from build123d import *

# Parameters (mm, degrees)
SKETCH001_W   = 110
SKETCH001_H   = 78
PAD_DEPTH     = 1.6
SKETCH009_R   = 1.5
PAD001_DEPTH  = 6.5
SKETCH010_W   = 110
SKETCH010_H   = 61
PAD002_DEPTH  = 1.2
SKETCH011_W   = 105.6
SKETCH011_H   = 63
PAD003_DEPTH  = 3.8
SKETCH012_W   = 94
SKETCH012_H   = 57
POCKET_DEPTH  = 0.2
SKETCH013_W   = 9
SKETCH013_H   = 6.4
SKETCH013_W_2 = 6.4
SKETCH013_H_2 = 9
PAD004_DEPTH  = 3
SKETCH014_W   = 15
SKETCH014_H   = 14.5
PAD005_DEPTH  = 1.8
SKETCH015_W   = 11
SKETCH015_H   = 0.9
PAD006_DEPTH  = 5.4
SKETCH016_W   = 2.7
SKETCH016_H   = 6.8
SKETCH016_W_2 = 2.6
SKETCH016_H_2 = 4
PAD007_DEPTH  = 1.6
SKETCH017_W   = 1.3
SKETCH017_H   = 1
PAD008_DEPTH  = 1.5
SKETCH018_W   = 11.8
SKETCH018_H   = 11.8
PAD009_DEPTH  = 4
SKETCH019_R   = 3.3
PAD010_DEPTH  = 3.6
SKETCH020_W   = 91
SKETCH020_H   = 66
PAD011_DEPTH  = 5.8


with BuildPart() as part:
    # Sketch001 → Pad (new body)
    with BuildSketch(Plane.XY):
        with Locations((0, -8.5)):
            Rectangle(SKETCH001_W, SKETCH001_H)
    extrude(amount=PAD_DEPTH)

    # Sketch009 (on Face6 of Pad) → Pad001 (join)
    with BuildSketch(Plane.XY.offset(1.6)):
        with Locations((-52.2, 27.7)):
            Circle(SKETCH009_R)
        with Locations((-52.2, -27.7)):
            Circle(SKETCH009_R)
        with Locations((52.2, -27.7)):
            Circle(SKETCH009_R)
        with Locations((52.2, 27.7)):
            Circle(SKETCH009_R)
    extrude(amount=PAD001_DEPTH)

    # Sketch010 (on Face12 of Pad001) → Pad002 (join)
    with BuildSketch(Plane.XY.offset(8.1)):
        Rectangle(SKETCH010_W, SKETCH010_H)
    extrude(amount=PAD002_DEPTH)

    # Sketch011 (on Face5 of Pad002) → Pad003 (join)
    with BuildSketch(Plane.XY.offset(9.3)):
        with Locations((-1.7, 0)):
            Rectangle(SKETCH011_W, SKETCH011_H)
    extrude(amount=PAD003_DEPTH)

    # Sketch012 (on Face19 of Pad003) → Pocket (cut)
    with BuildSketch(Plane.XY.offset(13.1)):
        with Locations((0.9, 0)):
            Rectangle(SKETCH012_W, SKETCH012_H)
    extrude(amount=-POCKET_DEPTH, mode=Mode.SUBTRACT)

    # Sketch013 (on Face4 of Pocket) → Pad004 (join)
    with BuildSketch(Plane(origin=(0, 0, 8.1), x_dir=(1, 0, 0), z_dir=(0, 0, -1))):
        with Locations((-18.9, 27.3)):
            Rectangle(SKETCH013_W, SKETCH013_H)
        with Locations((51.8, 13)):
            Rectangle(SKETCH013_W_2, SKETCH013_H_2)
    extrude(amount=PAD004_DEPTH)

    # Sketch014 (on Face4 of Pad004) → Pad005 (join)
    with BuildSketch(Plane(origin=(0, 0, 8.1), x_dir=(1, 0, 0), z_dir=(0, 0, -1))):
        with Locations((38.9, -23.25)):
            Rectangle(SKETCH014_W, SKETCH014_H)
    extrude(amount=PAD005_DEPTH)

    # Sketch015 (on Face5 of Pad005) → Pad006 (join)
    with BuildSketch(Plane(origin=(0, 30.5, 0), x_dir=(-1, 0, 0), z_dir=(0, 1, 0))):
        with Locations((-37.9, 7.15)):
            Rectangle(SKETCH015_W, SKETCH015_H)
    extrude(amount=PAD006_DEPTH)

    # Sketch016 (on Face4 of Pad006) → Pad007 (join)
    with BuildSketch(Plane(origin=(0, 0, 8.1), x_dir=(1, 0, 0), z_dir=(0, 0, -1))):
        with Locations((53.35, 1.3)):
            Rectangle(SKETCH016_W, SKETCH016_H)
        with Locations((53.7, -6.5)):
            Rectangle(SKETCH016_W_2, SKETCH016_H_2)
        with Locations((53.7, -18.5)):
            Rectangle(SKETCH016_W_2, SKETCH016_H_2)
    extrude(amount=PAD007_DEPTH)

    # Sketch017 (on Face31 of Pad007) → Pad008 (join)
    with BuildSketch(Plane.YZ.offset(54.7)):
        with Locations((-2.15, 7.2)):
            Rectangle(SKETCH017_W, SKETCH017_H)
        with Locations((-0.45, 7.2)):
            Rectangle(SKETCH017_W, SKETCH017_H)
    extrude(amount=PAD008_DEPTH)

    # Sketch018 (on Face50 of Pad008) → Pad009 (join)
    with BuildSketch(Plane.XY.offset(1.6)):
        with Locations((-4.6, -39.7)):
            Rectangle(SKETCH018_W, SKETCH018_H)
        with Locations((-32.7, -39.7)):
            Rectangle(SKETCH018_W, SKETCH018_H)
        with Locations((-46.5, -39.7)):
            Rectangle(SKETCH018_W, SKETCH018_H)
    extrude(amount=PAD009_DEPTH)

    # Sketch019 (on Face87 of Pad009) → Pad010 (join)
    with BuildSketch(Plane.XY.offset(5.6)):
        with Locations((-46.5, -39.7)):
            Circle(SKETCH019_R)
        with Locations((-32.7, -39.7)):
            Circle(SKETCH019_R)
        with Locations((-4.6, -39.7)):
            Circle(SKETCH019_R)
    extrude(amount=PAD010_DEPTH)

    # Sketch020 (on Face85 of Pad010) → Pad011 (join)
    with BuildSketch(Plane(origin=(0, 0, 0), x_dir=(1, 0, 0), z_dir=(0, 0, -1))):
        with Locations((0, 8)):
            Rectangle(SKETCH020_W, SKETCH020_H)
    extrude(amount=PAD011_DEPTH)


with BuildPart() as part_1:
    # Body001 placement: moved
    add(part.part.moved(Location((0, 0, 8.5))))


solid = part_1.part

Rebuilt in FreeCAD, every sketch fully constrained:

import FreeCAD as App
import Part
import Sketcher


def add_polygon(sketch, points):
    """Adds a closed chain of lines whose ends are joined by coincident constraints."""
    first, n = sketch.GeometryCount, len(points)
    for a, b in zip(points, points[1:] + points[:1]):
        sketch.addGeometry(Part.LineSegment(App.Vector(*a, 0), App.Vector(*b, 0)), False)
    for i in range(n):
        sketch.addConstraint(Sketcher.Constraint("Coincident", first + i, 2, first + (i + 1) % n, 1))

doc = App.newDocument("Part")
body = doc.addObject("PartDesign::Body", "Body")

# Sketch on XY plane
sketch1 = body.newObject("Sketcher::SketchObject", "Sketch")
sketch1.AttachmentSupport = (doc.getObject("XY_Plane"), [""])
sketch1.MapMode = "FlatFace"
add_polygon(sketch1, [(-55, 30.5), (-55, -47.5), (55, -47.5), (55, 30.5)])  # lines 0-3
sketch1.addConstraint([
    Sketcher.Constraint("Vertical", 0),
    Sketcher.Constraint("Horizontal", 1),
    Sketcher.Constraint("Vertical", 2),
    Sketcher.Constraint("Horizontal", 3),
    Sketcher.Constraint("DistanceX", 1, 1, 1, 2, 110.0),
    Sketcher.Constraint("DistanceY", 0, 2, 0, 1, 78.0),
    Sketcher.Constraint("DistanceX", 0, 2, -1, 1, 55.0),
    Sketcher.Constraint("DistanceY", 0, 2, -1, 1, 47.5),
])
pad1 = body.newObject("PartDesign::Pad", "Pad")
pad1.Profile = sketch1
pad1.Length = 1.6

# Sketch on XY plane
sketch2 = body.newObject("Sketcher::SketchObject", "Sketch001")
sketch2.AttachmentSupport = (doc.getObject("XY_Plane"), [""])
sketch2.MapMode = "FlatFace"
sketch2.AttachmentOffset = App.Placement(App.Vector(0, 0, 1.6), App.Rotation())
sketch2.addGeometry([
    Part.Circle(App.Vector(-52.2, 27.7, 0), App.Vector(0, 0, 1), 1.5),
    Part.Circle(App.Vector(-52.2, -27.7, 0), App.Vector(0, 0, 1), 1.5),
    Part.Circle(App.Vector(52.2, -27.7, 0), App.Vector(0, 0, 1), 1.5),
    Part.Circle(App.Vector(52.2, 27.7, 0), App.Vector(0, 0, 1), 1.5),
], False)
sketch2.addConstraint([
    Sketcher.Constraint("Equal", 0, 1),
    Sketcher.Constraint("Equal", 1, 2),
    Sketcher.Constraint("Equal", 2, 3),
    Sketcher.Constraint("Symmetric", 0, 3, 2, 3, -1, 1),
    Sketcher.Constraint("Symmetric", 1, 3, 3, 3, -1, 1),
    Sketcher.Constraint("Symmetric", 1, 3, 2, 3, -2),
    Sketcher.Constraint("Diameter", 0, 3.0),
    Sketcher.Constraint("DistanceX", 0, 3, -1, 1, 52.2),
    Sketcher.Constraint("DistanceY", -1, 1, 0, 3, 27.7),
])
pad2 = body.newObject("PartDesign::Pad", "Pad001")
pad2.Profile = sketch2
pad2.Length = 6.5

# Sketch on XY plane
sketch3 = body.newObject("Sketcher::SketchObject", "Sketch002")
sketch3.AttachmentSupport = (doc.getObject("XY_Plane"), [""])
sketch3.MapMode = "FlatFace"
sketch3.AttachmentOffset = App.Placement(App.Vector(0, 0, 8.1), App.Rotation())
add_polygon(sketch3, [(-55, 30.5), (-55, -30.5), (55, -30.5), (55, 30.5)])  # lines 0-3
sketch3.addConstraint([
    Sketcher.Constraint("Vertical", 0),
    Sketcher.Constraint("Horizontal", 1),
    Sketcher.Constraint("Vertical", 2),
    Sketcher.Constraint("Horizontal", 3),
    Sketcher.Constraint("Symmetric", 0, 2, 2, 2, -1, 1),
    Sketcher.Constraint("DistanceX", 1, 1, 1, 2, 110.0),
    Sketcher.Constraint("DistanceY", 0, 2, 0, 1, 61.0),
])
pad3 = body.newObject("PartDesign::Pad", "Pad002")
pad3.Profile = sketch3
pad3.Length = 1.2

# Sketch on XY plane
sketch4 = body.newObject("Sketcher::SketchObject", "Sketch003")
sketch4.AttachmentSupport = (doc.getObject("XY_Plane"), [""])
sketch4.MapMode = "FlatFace"
sketch4.AttachmentOffset = App.Placement(App.Vector(0, 0, 9.3), App.Rotation())
add_polygon(sketch4, [(-54.5, 31.5), (-54.5, -31.5), (51.1, -31.5), (51.1, 31.5)])  # lines 0-3
sketch4.addConstraint([
    Sketcher.Constraint("Vertical", 0),
    Sketcher.Constraint("Horizontal", 1),
    Sketcher.Constraint("Vertical", 2),
    Sketcher.Constraint("Horizontal", 3),
    Sketcher.Constraint("DistanceY", 0, 2, 0, 1, 63.0),
    Sketcher.Constraint("DistanceX", 1, 1, 1, 2, 105.6),
    Sketcher.Constraint("DistanceX", 0, 2, -1, 1, 54.5),
    Sketcher.Constraint("DistanceY", 0, 2, -1, 1, 31.5),
])
pad4 = body.newObject("PartDesign::Pad", "Pad003")
pad4.Profile = sketch4
pad4.Length = 3.8

# Sketch on XY plane
sketch5 = body.newObject("Sketcher::SketchObject", "Sketch004")
sketch5.AttachmentSupport = (doc.getObject("XY_Plane"), [""])
sketch5.MapMode = "FlatFace"
sketch5.AttachmentOffset = App.Placement(App.Vector(0, 0, 13.1), App.Rotation())
add_polygon(sketch5, [(-46.1, 28.5), (-46.1, -28.5), (47.9, -28.5), (47.9, 28.5)])  # lines 0-3
sketch5.addConstraint([
    Sketcher.Constraint("Vertical", 0),
    Sketcher.Constraint("Horizontal", 1),
    Sketcher.Constraint("Vertical", 2),
    Sketcher.Constraint("Horizontal", 3),
    Sketcher.Constraint("DistanceX", 1, 1, 1, 2, 94.0),
    Sketcher.Constraint("DistanceY", 0, 2, 0, 1, 57.0),
    Sketcher.Constraint("DistanceX", 0, 2, -1, 1, 46.1),
    Sketcher.Constraint("DistanceY", 0, 2, -1, 1, 28.5),
])
pocket1 = body.newObject("PartDesign::Pocket", "Pocket")
pocket1.Profile = sketch5
pocket1.Length = 0.2

# Sketch on XY plane
sketch6 = body.newObject("Sketcher::SketchObject", "Sketch005")
sketch6.AttachmentSupport = (doc.getObject("XY_Plane"), [""])
sketch6.MapMode = "FlatFace"
sketch6.AttachmentOffset = App.Placement(App.Vector(0, 0, 8.1), App.Rotation())
add_polygon(sketch6, [(-23.4, -30.5), (-23.4, -24.1), (-14.4, -24.1), (-14.4, -30.5)])  # lines 0-3
add_polygon(sketch6, [(48.6, -17.5), (48.6, -8.5), (55, -8.5), (55, -17.5)])  # lines 4-7
sketch6.addConstraint([
    Sketcher.Constraint("Vertical", 0),
    Sketcher.Constraint("Horizontal", 1),
    Sketcher.Constraint("Vertical", 2),
    Sketcher.Constraint("Horizontal", 3),
    Sketcher.Constraint("Vertical", 4),
    Sketcher.Constraint("Horizontal", 5),
    Sketcher.Constraint("Vertical", 6),
    Sketcher.Constraint("Horizontal", 7),
    Sketcher.Constraint("Equal", 7, 0),
    Sketcher.Constraint("Equal", 3, 4),
    Sketcher.Constraint("DistanceX", 1, 1, 1, 2, 9.0),
    Sketcher.Constraint("DistanceX", 5, 1, 5, 2, 6.4),
    Sketcher.Constraint("DistanceX", -1, 1, 5, 2, 55.0),
    Sketcher.Constraint("DistanceX", 1, 2, 4, 2, 63.0),
    Sketcher.Constraint("DistanceY", 2, 2, 4, 2, 22.0),
    Sketcher.Constraint("DistanceY", 0, 2, -1, 1, 24.1),
])
pad5 = body.newObject("PartDesign::Pad", "Pad004")
pad5.Profile = sketch6
pad5.Length = 3
pad5.Reversed = True

# Sketch on XY plane
sketch7 = body.newObject("Sketcher::SketchObject", "Sketch006")
sketch7.AttachmentSupport = (doc.getObject("XY_Plane"), [""])
sketch7.MapMode = "FlatFace"
sketch7.AttachmentOffset = App.Placement(App.Vector(0, 0, 8.1), App.Rotation())
add_polygon(sketch7, [(31.4, 16), (31.4, 30.5), (46.4, 30.5), (46.4, 16)])  # lines 0-3
sketch7.addConstraint([
    Sketcher.Constraint("Vertical", 0),
    Sketcher.Constraint("Horizontal", 1),
    Sketcher.Constraint("Vertical", 2),
    Sketcher.Constraint("Horizontal", 3),
    Sketcher.Constraint("DistanceX", 1, 1, 1, 2, 15.0),
    Sketcher.Constraint("DistanceY", 0, 1, 0, 2, 14.5),
    Sketcher.Constraint("DistanceY", -1, 1, 2, 2, 16.0),
    Sketcher.Constraint("DistanceX", -1, 1, 0, 2, 31.4),
])
pad6 = body.newObject("PartDesign::Pad", "Pad005")
pad6.Profile = sketch7
pad6.Length = 1.8
pad6.Reversed = True

# Sketch on XZ plane
sketch8 = body.newObject("Sketcher::SketchObject", "Sketch007")
sketch8.AttachmentSupport = (doc.getObject("XZ_Plane"), [""])
sketch8.MapMode = "FlatFace"
sketch8.AttachmentOffset = App.Placement(App.Vector(0, 0, -30.5), App.Rotation())
add_polygon(sketch8, [(43.4, 7.6), (43.4, 6.7), (32.4, 6.7), (32.4, 7.6)])  # lines 0-3
sketch8.addConstraint([
    Sketcher.Constraint("Vertical", 0),
    Sketcher.Constraint("Horizontal", 1),
    Sketcher.Constraint("Vertical", 2),
    Sketcher.Constraint("Horizontal", 3),
    Sketcher.Constraint("DistanceX", 1, 2, 1, 1, 11.0),
    Sketcher.Constraint("DistanceY", 0, 2, 0, 1, 0.9),
    Sketcher.Constraint("DistanceX", -1, 1, 0, 2, 43.4),
    Sketcher.Constraint("DistanceY", -1, 1, 0, 2, 6.7),
])
pad7 = body.newObject("PartDesign::Pad", "Pad006")
pad7.Profile = sketch8
pad7.Length = 5.4
pad7.Reversed = True

# Sketch on XY plane
sketch9 = body.newObject("Sketcher::SketchObject", "Sketch008")
sketch9.AttachmentSupport = (doc.getObject("XY_Plane"), [""])
sketch9.MapMode = "FlatFace"
sketch9.AttachmentOffset = App.Placement(App.Vector(0, 0, 8.1), App.Rotation())
add_polygon(sketch9, [(52, -4.7), (52, 2.1), (54.7, 2.1), (54.7, -4.7)])  # lines 0-3
add_polygon(sketch9, [(52.4, 4.5), (52.4, 8.5), (55, 8.5), (55, 4.5)])  # lines 4-7
add_polygon(sketch9, [(52.4, 16.5), (52.4, 20.5), (55, 20.5), (55, 16.5)])  # lines 8-11
sketch9.addConstraint([
    Sketcher.Constraint("Vertical", 0),
    Sketcher.Constraint("Horizontal", 1),
    Sketcher.Constraint("Vertical", 2),
    Sketcher.Constraint("Horizontal", 3),
    Sketcher.Constraint("Vertical", 4),
    Sketcher.Constraint("Horizontal", 5),
    Sketcher.Constraint("Vertical", 6),
    Sketcher.Constraint("Horizontal", 7),
    Sketcher.Constraint("Vertical", 8),
    Sketcher.Constraint("Horizontal", 9),
    Sketcher.Constraint("Vertical", 10),
    Sketcher.Constraint("Horizontal", 11),
    Sketcher.Constraint("Vertical", 7, 2, 8, 2),
    Sketcher.Constraint("Vertical", 6, 2, 9, 2),
    Sketcher.Constraint("Equal", 6, 8),
    Sketcher.Constraint("DistanceY", 4, 1, 4, 2, 4.0),
    Sketcher.Constraint("DistanceX", 1, 1, 1, 2, 2.7),
    Sketcher.Constraint("DistanceX", 5, 1, 5, 2, 2.6),
    Sketcher.Constraint("DistanceY", 0, 1, 0, 2, 6.8),
    Sketcher.Constraint("DistanceX", -1, 1, 0, 2, 52.0),
    Sketcher.Constraint("DistanceX", -1, 1, 5, 2, 55.0),
    Sketcher.Constraint("DistanceY", 4, 2, 8, 2, 12.0),
    Sketcher.Constraint("DistanceY", -1, 1, 0, 2, 2.1),
    Sketcher.Constraint("DistanceY", -1, 1, 4, 2, 8.5),
])
pad8 = body.newObject("PartDesign::Pad", "Pad007")
pad8.Profile = sketch9
pad8.Length = 1.6
pad8.Reversed = True

# Sketch on YZ plane
sketch10 = body.newObject("Sketcher::SketchObject", "Sketch009")
sketch10.AttachmentSupport = (doc.getObject("YZ_Plane"), [""])
sketch10.MapMode = "FlatFace"
sketch10.AttachmentOffset = App.Placement(App.Vector(0, 0, 54.7), App.Rotation())
add_polygon(sketch10, [(-2.8, 7.7), (-2.8, 6.7), (-1.5, 6.7), (-1.5, 7.7)])  # lines 0-3
add_polygon(sketch10, [(-1.1, 7.7), (-1.1, 6.7), (0.2, 6.7), (0.2, 7.7)])  # lines 4-7
sketch10.addConstraint([
    Sketcher.Constraint("Vertical", 0),
    Sketcher.Constraint("Horizontal", 1),
    Sketcher.Constraint("Vertical", 2),
    Sketcher.Constraint("Horizontal", 3),
    Sketcher.Constraint("Vertical", 4),
    Sketcher.Constraint("Horizontal", 5),
    Sketcher.Constraint("Vertical", 6),
    Sketcher.Constraint("Horizontal", 7),
    Sketcher.Constraint("Horizontal", 1, 2, 4, 2),
    Sketcher.Constraint("Horizontal", 3, 2, 6, 2),
    Sketcher.Constraint("Equal", 3, 5),
    Sketcher.Constraint("DistanceY", 0, 2, 0, 1, 1.0),
    Sketcher.Constraint("DistanceX", 1, 1, 1, 2, 1.3),
    Sketcher.Constraint("DistanceX", 0, 2, 5, 2, 3.0),
    Sketcher.Constraint("DistanceX", 0, 2, -1, 1, 2.8),
    Sketcher.Constraint("DistanceY", -1, 1, 0, 2, 6.7),
])
pad9 = body.newObject("PartDesign::Pad", "Pad008")
pad9.Profile = sketch10
pad9.Length = 1.5

# Sketch on XY plane
sketch11 = body.newObject("Sketcher::SketchObject", "Sketch010")
sketch11.AttachmentSupport = (doc.getObject("XY_Plane"), [""])
sketch11.MapMode = "FlatFace"
sketch11.AttachmentOffset = App.Placement(App.Vector(0, 0, 1.6), App.Rotation())
add_polygon(sketch11, [(-10.5, -33.8), (-10.5, -45.6), (1.3, -45.6), (1.3, -33.8)])  # lines 0-3
add_polygon(sketch11, [(-38.6, -33.8), (-38.6, -45.6), (-26.8, -45.6), (-26.8, -33.8)])  # lines 4-7
add_polygon(sketch11, [(-52.4, -33.8), (-52.4, -45.6), (-40.6, -45.6), (-40.6, -33.8)])  # lines 8-11
sketch11.addConstraint([
    Sketcher.Constraint("Vertical", 0),
    Sketcher.Constraint("Horizontal", 1),
    Sketcher.Constraint("Vertical", 2),
    Sketcher.Constraint("Horizontal", 3),
    Sketcher.Constraint("Vertical", 4),
    Sketcher.Constraint("Horizontal", 5),
    Sketcher.Constraint("Vertical", 6),
    Sketcher.Constraint("Horizontal", 7),
    Sketcher.Constraint("Vertical", 8),
    Sketcher.Constraint("Horizontal", 9),
    Sketcher.Constraint("Vertical", 10),
    Sketcher.Constraint("Horizontal", 11),
    Sketcher.Constraint("Horizontal", 1, 2, 4, 2),
    Sketcher.Constraint("Horizontal", 3, 2, 6, 2),
    Sketcher.Constraint("Horizontal", 5, 2, 8, 2),
    Sketcher.Constraint("Horizontal", 7, 2, 10, 2),
    Sketcher.Constraint("Equal", 3, 5),
    Sketcher.Constraint("Equal", 7, 9),
    Sketcher.Constraint("Equal", 11, 0),
    Sketcher.Constraint("DistanceX", 1, 1, 1, 2, 11.8),
    Sketcher.Constraint("DistanceX", 9, 2, 4, 2, 2.0),
    Sketcher.Constraint("DistanceX", 0, 2, -1, 1, 10.5),
    Sketcher.Constraint("DistanceY", 0, 2, -1, 1, 45.6),
    Sketcher.Constraint("DistanceX", 4, 2, -1, 1, 38.6),
])
pad10 = body.newObject("PartDesign::Pad", "Pad009")
pad10.Profile = sketch11
pad10.Length = 4

# Sketch on XY plane
sketch12 = body.newObject("Sketcher::SketchObject", "Sketch011")
sketch12.AttachmentSupport = (doc.getObject("XY_Plane"), [""])
sketch12.MapMode = "FlatFace"
sketch12.AttachmentOffset = App.Placement(App.Vector(0, 0, 5.6), App.Rotation())
sketch12.addGeometry([
    Part.Circle(App.Vector(-46.5, -39.7, 0), App.Vector(0, 0, 1), 3.3),
    Part.Circle(App.Vector(-32.7, -39.7, 0), App.Vector(0, 0, 1), 3.3),
    Part.Circle(App.Vector(-4.6, -39.7, 0), App.Vector(0, 0, 1), 3.3),
], False)
sketch12.addConstraint([
    Sketcher.Constraint("Equal", 0, 1),
    Sketcher.Constraint("Equal", 1, 2),
    Sketcher.Constraint("Horizontal", 0, 3, 1, 3),
    Sketcher.Constraint("Horizontal", 1, 3, 2, 3),
    Sketcher.Constraint("Diameter", 0, 6.6),
    Sketcher.Constraint("DistanceX", 0, 3, -1, 1, 46.5),
    Sketcher.Constraint("DistanceY", 0, 3, -1, 1, 39.7),
    Sketcher.Constraint("DistanceX", 1, 3, -1, 1, 32.7),
    Sketcher.Constraint("DistanceX", 2, 3, -1, 1, 4.6),
])
pad11 = body.newObject("PartDesign::Pad", "Pad010")
pad11.Profile = sketch12
pad11.Length = 3.6

# Sketch on XY plane
sketch13 = body.newObject("Sketcher::SketchObject", "Sketch012")
sketch13.AttachmentSupport = (doc.getObject("XY_Plane"), [""])
sketch13.MapMode = "FlatFace"
add_polygon(sketch13, [(-45.5, -41), (-45.5, 25), (45.5, 25), (45.5, -41)])  # lines 0-3
sketch13.addConstraint([
    Sketcher.Constraint("Vertical", 0),
    Sketcher.Constraint("Horizontal", 1),
    Sketcher.Constraint("Vertical", 2),
    Sketcher.Constraint("Horizontal", 3),
    Sketcher.Constraint("DistanceX", 1, 1, 1, 2, 91.0),
    Sketcher.Constraint("DistanceY", 0, 1, 0, 2, 66.0),
    Sketcher.Constraint("DistanceY", -1, 1, 0, 2, 25.0),
    Sketcher.Constraint("DistanceX", 0, 2, -1, 1, 45.5),
])
pad12 = body.newObject("PartDesign::Pad", "Pad011")
pad12.Profile = sketch13
pad12.Length = 5.8
pad12.Reversed = True
body2 = doc.addObject("PartDesign::Body", "Body001")
doc.recompute()

body.Placement = App.Placement(App.Vector(0, 0, 8.5), App.Rotation(App.Vector(0, 0, 1), 0))
boolean = body2.newObject("PartDesign::Boolean", "Boolean")
boolean.Type = "Fuse"
boolean.addObjects([body])

doc.recompute()
